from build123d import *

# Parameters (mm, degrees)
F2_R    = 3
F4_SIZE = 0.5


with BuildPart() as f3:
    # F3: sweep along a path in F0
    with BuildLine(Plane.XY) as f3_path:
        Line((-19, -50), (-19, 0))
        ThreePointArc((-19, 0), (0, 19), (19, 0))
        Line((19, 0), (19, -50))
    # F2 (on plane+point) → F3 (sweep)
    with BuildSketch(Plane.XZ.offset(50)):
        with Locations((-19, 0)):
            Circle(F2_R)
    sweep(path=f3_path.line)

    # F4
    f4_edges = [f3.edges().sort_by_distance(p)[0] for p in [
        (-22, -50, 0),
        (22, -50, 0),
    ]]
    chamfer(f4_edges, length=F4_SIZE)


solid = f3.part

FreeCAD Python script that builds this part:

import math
import FreeCAD as App
import Part
import Sketcher
from FreeCAD import Vector
Q = App.Units.Quantity


def edges_at(feature, points):
    """Names of the edges that pass closest to the given points."""
    edges = feature.Shape.Edges
    near = lambda p: min(range(len(edges)), key=lambda i: edges[i].distToShape(Part.Vertex(*p))[0])
    return sorted({f"Edge{near(p) + 1}" for p in points})

doc = App.newDocument("Part")
params = doc.addObject("Spreadsheet::Sheet", "Params")
for row, (alias, value) in enumerate([
    ("sketch1_diameter", "6 mm"),
    ("sketch2_radius", "19 mm"),
    ("sketch2_height", "50 mm"),
    ("chamfer_size", "0.5 mm"),
], start=1):
    params.set(f"A{row}", alias)
    params.set(f"B{row}", "=" + value)
    params.setAlias(f"B{row}", alias)

body = doc.addObject("PartDesign::Body", "Body")

sketch1 = body.newObject("Sketcher::SketchObject", "Sketch")
sketch1.AttachmentSupport = (doc.getObject("XZ_Plane"), [""])
sketch1.MapMode = "FlatFace"
sketch1.AttachmentOffset = App.Placement(Vector(0, 0, 50), App.Rotation())
sketch1.addGeometry(Part.Circle(Vector(-19, 0, 0), Vector(0, 0, 1), 3), False)
sketch1.addConstraint(Sketcher.Constraint("PointOnObject", 0, 3, -1))
sketch1.addConstraint(Sketcher.Constraint("Diameter", 0, Q("6 mm")))
sketch1.addConstraint(Sketcher.Constraint("DistanceX", 0, 3, -1, 1, Q("19 mm")))
sketch1.setExpression("Constraints[1]", "Params.sketch1_diameter")

sketch2 = body.newObject("Sketcher::SketchObject", "Sketch001")
sketch2.AttachmentSupport = (doc.getObject("XY_Plane"), [""])
sketch2.MapMode = "FlatFace"
sketch2.addGeometry(Part.LineSegment(Vector(-19, -50, 0), Vector(-19, 0, 0)), False)
sketch2.addGeometry(Part.ArcOfCircle(Part.Circle(Vector(0, 0, 0), Vector(0, 0, 1), 19), math.radians(0), math.radians(180)), False)
sketch2.addGeometry(Part.LineSegment(Vector(19, 0, 0), Vector(19, -50, 0)), False)
sketch2.addConstraint(Sketcher.Constraint("Tangent", 0, 2, 1, 2))
sketch2.addConstraint(Sketcher.Constraint("Tangent", 1, 1, 2, 1))
sketch2.addConstraint(Sketcher.Constraint("Vertical", 0))
sketch2.addConstraint(Sketcher.Constraint("Vertical", 2))
sketch2.addConstraint(Sketcher.Constraint("Coincident", 1, 3, -1, 1))
sketch2.addConstraint(Sketcher.Constraint("Horizontal", 0, 1, 2, 2))
sketch2.addConstraint(Sketcher.Constraint("Radius", 1, Q("19 mm")))
sketch2.addConstraint(Sketcher.Constraint("DistanceY", 0, 1, 0, 2, Q("50 mm")))
sketch2.setExpression("Constraints[6]", "Params.sketch2_radius")
sketch2.setExpression("Constraints[7]", "Params.sketch2_height")
doc.recompute()

additivepipe = body.newObject("PartDesign::AdditivePipe", "AdditivePipe")
additivepipe.Profile = sketch1
additivepipe.Spine = (sketch2, ["Edge1", "Edge2", "Edge3"])
doc.recompute()

chamfer = body.newObject("PartDesign::Chamfer", "Chamfer")
chamfer.Base = (additivepipe, edges_at(additivepipe, [(-22, -50, 0), (22, -50, 0)]))
chamfer.setExpression("Size", "Params.chamfer_size")

doc.recompute()
